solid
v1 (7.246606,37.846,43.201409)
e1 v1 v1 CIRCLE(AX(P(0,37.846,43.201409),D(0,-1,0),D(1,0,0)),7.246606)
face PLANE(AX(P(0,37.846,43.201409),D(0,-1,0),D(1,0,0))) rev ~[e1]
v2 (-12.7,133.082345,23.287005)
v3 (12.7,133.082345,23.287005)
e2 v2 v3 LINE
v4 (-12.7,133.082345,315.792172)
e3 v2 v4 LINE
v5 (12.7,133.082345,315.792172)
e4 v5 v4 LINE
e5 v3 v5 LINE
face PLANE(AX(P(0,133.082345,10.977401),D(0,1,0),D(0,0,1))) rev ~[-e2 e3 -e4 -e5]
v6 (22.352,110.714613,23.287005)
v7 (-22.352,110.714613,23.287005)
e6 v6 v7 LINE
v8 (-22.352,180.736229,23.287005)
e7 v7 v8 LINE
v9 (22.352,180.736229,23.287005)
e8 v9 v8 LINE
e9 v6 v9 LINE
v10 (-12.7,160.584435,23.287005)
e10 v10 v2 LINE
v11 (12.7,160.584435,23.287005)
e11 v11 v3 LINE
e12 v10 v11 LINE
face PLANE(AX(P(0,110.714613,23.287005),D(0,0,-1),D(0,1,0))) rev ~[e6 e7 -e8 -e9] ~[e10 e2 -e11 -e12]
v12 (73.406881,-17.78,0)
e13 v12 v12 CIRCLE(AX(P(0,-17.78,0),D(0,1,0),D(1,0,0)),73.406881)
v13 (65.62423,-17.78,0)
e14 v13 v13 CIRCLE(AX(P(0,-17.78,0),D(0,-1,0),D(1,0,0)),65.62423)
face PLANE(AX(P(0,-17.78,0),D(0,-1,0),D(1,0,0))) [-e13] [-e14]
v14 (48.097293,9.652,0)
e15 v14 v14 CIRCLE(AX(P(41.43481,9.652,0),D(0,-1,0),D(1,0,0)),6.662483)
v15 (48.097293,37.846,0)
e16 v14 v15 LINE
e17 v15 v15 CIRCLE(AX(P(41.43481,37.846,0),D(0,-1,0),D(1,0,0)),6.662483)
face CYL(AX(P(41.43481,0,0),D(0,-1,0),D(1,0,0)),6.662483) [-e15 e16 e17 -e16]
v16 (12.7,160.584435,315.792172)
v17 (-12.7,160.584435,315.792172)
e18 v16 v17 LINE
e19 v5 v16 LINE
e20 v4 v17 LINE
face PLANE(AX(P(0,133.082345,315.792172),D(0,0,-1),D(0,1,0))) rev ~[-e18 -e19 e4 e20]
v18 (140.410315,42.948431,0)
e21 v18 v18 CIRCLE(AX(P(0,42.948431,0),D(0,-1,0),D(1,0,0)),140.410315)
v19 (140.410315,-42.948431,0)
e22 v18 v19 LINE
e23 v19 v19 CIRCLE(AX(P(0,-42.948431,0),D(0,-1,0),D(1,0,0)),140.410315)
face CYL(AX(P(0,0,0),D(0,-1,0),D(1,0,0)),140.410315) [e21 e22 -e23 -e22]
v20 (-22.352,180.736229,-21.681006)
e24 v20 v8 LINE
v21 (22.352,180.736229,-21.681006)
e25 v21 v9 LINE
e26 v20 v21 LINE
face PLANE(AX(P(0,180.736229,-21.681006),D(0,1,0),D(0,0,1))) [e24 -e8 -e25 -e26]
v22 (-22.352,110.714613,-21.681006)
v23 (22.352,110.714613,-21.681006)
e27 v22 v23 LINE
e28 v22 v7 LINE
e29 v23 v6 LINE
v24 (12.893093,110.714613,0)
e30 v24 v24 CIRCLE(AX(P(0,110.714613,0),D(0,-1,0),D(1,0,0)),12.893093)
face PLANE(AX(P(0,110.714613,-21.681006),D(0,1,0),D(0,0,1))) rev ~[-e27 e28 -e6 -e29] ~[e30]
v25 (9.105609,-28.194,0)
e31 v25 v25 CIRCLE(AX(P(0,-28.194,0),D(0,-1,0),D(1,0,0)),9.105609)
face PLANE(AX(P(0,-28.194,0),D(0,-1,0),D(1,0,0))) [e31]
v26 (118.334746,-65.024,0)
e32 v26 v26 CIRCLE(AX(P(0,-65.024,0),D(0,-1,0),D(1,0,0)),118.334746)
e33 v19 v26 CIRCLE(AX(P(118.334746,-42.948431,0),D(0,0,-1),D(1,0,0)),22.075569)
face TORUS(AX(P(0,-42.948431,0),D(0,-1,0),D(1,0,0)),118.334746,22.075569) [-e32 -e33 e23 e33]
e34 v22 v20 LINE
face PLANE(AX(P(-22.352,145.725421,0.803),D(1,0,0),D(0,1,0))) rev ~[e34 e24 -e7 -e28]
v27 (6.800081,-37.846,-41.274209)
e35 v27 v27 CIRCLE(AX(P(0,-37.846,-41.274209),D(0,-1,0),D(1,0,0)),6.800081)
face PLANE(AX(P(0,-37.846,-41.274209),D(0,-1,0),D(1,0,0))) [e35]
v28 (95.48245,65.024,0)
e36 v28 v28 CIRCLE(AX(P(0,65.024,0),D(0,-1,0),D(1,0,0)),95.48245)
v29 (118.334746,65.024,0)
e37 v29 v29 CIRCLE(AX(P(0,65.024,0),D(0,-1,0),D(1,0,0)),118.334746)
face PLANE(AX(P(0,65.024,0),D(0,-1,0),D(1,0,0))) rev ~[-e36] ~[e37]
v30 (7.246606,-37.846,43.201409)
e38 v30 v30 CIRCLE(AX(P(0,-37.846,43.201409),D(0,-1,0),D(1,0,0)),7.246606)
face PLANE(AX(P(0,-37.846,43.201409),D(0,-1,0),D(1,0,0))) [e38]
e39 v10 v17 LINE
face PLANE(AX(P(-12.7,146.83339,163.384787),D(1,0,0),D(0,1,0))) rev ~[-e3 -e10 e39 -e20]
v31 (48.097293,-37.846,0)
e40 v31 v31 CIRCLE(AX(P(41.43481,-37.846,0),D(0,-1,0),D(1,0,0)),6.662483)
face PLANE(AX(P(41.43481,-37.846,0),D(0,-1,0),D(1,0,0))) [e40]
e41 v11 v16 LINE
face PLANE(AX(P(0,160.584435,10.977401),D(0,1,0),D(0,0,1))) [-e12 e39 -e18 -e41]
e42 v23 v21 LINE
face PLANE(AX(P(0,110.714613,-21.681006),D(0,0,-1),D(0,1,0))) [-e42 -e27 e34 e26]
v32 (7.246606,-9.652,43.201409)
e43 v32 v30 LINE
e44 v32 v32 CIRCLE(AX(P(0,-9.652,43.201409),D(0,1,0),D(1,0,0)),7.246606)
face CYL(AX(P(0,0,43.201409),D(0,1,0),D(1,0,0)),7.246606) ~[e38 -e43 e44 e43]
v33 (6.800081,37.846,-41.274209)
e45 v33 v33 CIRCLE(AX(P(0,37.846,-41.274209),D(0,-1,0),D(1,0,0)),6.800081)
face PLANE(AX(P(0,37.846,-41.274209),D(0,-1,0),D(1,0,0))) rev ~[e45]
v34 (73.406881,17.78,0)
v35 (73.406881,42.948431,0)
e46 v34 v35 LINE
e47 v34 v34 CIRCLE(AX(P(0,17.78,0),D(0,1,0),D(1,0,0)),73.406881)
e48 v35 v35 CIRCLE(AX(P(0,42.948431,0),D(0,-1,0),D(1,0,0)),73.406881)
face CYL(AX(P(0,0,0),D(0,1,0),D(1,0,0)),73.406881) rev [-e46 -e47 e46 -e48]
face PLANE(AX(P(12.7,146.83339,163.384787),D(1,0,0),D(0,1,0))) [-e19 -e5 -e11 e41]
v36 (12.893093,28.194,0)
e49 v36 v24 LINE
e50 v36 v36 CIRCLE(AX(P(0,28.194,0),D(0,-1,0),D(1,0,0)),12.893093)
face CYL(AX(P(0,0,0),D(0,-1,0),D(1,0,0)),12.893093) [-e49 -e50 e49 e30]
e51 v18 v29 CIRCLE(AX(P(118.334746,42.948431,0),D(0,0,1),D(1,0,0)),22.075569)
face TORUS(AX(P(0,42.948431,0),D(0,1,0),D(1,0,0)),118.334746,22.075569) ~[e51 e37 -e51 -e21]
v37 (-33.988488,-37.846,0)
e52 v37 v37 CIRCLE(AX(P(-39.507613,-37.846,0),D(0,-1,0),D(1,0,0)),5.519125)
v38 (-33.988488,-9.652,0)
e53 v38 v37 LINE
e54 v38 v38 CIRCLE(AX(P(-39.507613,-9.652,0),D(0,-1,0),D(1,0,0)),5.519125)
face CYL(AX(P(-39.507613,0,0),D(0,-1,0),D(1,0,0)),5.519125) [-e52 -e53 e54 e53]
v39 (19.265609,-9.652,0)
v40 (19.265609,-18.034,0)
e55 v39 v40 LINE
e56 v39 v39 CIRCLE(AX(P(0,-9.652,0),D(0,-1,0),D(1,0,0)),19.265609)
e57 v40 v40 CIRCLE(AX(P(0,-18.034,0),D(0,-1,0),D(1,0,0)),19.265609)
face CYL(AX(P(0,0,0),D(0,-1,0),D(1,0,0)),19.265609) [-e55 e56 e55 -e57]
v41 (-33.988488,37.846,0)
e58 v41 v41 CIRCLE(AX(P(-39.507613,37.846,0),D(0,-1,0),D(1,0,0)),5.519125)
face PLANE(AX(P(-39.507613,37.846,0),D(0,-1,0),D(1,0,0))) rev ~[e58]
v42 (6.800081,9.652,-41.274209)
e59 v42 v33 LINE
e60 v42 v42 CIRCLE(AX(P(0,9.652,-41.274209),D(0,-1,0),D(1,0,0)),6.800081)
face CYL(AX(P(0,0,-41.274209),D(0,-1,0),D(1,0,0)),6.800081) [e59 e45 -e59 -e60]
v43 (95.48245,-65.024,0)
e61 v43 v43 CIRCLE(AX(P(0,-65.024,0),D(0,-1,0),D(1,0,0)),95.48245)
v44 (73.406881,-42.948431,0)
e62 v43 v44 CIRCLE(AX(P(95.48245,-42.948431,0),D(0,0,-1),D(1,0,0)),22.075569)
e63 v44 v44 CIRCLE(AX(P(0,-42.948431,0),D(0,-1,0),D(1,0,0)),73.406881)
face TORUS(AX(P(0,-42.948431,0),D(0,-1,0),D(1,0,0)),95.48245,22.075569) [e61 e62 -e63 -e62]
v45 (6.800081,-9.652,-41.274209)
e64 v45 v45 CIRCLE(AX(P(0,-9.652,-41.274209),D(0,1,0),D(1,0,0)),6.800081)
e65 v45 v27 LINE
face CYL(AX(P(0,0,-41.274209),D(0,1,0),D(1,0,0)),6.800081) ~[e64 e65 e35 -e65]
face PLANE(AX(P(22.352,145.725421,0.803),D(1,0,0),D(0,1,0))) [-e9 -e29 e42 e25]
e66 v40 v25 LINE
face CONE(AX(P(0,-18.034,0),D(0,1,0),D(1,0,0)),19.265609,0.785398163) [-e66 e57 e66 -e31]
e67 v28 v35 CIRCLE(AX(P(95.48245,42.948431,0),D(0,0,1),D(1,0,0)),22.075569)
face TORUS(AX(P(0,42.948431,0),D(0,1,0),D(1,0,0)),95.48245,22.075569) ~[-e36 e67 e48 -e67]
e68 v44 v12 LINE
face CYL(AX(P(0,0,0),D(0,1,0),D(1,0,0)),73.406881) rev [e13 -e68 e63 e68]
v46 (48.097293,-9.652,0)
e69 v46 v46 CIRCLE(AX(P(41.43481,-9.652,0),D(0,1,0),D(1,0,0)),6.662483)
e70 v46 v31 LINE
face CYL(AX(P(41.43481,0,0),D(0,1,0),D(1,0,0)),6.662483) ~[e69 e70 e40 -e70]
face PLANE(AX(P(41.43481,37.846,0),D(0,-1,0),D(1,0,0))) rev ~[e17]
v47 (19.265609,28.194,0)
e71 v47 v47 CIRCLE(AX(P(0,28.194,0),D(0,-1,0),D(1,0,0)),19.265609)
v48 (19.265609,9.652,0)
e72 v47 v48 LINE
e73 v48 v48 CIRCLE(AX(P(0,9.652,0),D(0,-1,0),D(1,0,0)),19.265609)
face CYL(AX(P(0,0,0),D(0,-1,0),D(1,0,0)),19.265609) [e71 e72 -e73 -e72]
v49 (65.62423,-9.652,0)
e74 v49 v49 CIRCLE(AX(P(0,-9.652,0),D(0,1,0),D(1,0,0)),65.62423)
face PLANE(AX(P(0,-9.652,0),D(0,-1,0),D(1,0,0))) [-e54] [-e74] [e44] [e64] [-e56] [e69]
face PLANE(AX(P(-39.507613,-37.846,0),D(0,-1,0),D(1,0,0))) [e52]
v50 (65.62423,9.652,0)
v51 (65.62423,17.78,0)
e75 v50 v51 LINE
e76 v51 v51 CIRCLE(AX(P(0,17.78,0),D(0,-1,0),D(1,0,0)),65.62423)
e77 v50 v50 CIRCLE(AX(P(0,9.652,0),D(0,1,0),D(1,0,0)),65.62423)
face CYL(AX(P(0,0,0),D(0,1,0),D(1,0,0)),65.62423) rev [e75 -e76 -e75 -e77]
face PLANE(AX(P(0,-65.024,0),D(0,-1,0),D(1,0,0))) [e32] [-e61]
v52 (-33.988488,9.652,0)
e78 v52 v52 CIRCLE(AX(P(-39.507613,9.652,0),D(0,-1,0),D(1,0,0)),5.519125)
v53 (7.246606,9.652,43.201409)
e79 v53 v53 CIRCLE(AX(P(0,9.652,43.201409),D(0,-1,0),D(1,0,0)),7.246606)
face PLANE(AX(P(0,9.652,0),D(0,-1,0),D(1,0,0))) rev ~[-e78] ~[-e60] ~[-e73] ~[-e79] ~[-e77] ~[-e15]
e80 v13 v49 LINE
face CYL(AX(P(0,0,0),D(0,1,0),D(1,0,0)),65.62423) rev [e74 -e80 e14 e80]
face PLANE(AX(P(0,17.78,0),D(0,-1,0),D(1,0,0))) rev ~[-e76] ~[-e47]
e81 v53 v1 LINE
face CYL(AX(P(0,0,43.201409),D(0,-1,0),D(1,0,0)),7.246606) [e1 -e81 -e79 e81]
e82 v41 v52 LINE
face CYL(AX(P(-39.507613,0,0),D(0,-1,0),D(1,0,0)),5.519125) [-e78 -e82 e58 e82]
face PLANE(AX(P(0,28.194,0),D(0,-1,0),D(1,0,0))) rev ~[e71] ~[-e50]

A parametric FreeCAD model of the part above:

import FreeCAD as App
import Part
import Sketcher
Q = App.Units.Quantity


def edges_at(feature, points):
    """Names of the edges that pass closest to the given points."""
    edges = feature.Shape.Edges
    near = lambda p: min(range(len(edges)), key=lambda i: edges[i].distToShape(Part.Vertex(*p))[0])
    return sorted({f"Edge{near(p) + 1}" for p in points})


def add_polygon(sketch, points):
    """Adds a closed chain of lines whose ends are joined by coincident constraints."""
    first, n = sketch.GeometryCount, len(points)
    for a, b in zip(points, points[1:] + points[:1]):
        sketch.addGeometry(Part.LineSegment(App.Vector(*a, 0), App.Vector(*b, 0)), False)
    for i in range(n):
        sketch.addConstraint(Sketcher.Constraint("Coincident", first + i, 2, first + (i + 1) % n, 1))

doc = App.newDocument("Part")
body = doc.addObject("PartDesign::Body", "Body")

# Sketch on XZ plane
sketch1 = doc.addObject("Sketcher::SketchObject", "Sketch")
body.addObject(sketch1)
sketch1.AttachmentSupport = (doc.XZ_Plane, [""])
sketch1.MapMode = "FlatFace"
sketch1.addGeometry(Part.Circle(App.Vector(0, 0, 0), App.Vector(0, 0, 1), 19), False)
sketch1.addConstraint([
    Sketcher.Constraint("Coincident", 0, 3, -1, 1),
    Sketcher.Constraint("Diameter", 0, Q("38.531218 mm")),
])
pad1 = doc.addObject("PartDesign::Pad", "Pad")
body.addObject(pad1)
pad1.Profile = sketch1
pad1.Length = Q("2.22 in")
pad1.Midplane = True

# Sketch on XZ plane
sketch2 = doc.addObject("Sketcher::SketchObject", "Sketch001")
body.addObject(sketch2)
sketch2.AttachmentSupport = (doc.XZ_Plane, [""])
sketch2.MapMode = "FlatFace"
sketch2.addGeometry(Part.Circle(App.Vector(0, 0, 0), App.Vector(0, 0, 1), 77), False)
sketch2.addConstraint([
    Sketcher.Constraint("Coincident", 0, 3, -1, 1),
    Sketcher.Constraint("Diameter", 0, Q("153.431834 mm")),
])
pad2 = doc.addObject("PartDesign::Pad", "Pad001")
body.addObject(pad2)
pad2.Profile = sketch2
pad2.Length = Q("0.76 in")
pad2.Midplane = True
doc.recompute()

chamfer = doc.addObject("PartDesign::Chamfer", "Chamfer")
body.addObject(chamfer)
chamfer.Base = (pad2, edges_at(pad2, [(-19.266, -28.194, 0)]))
chamfer.Size = Q("0.4 in")

# Sketch on XZ plane
sketch3 = doc.addObject("Sketcher::SketchObject", "Sketch002")
body.addObject(sketch3)
sketch3.AttachmentSupport = (doc.XZ_Plane, [""])
sketch3.MapMode = "FlatFace"
sketch3.addGeometry([
    Part.Circle(App.Vector(0, 0, 0), App.Vector(0, 0, 1), 77),
    Part.Circle(App.Vector(0, 0, 0), App.Vector(0, 0, 1), 66),
], False)
sketch3.addConstraint([
    Sketcher.Constraint("Coincident", 0, 3, -1, 1),
    Sketcher.Constraint("Coincident", 1, 3, -1, 1),
    Sketcher.Constraint("Diameter", 1, Q("131.24846 mm")),
    Sketcher.Constraint("Diameter", 0, Q("153.246006 mm")),
])
pad3 = doc.addObject("PartDesign::Pad", "Pad002")
body.addObject(pad3)
pad3.Profile = sketch3
pad3.Length = Q("1.4 in")
pad3.Midplane = True

# Sketch on XZ plane
sketch4 = doc.addObject("Sketcher::SketchObject", "Sketch003")
body.addObject(sketch4)
sketch4.AttachmentSupport = (doc.XZ_Plane, [""])
sketch4.MapMode = "FlatFace"
sketch4.addGeometry([
    Part.Circle(App.Vector(0, 0, 0), App.Vector(0, 0, 1), 140),
    Part.Circle(App.Vector(0, 0, 0), App.Vector(0, 0, 1), 73),
], False)
sketch4.addConstraint([
    Sketcher.Constraint("Coincident", 0, 3, -1, 1),
    Sketcher.Constraint("Coincident", 1, 3, -1, 1),
    Sketcher.Constraint("Diameter", 0, Q("280.82063 mm")),
    Sketcher.Constraint("Diameter", 1, Q("146.813762 mm")),
])
pad4 = doc.addObject("PartDesign::Pad", "Pad003")
body.addObject(pad4)
pad4.Profile = sketch4
pad4.Length = Q("5.12 in")
pad4.Midplane = True
doc.recompute()

fillet = doc.addObject("PartDesign::Fillet", "Fillet")
body.addObject(fillet)
fillet.Base = (pad4, edges_at(pad4, [
    (-140.41, 65.024, 0),
    (-73.407, 65.024, 0),
    (-140.41, -65.024, 0),
    (-73.407, -65.024, 0),
]))
fillet.Radius = 22.075569

# Sketch on XZ plane
sketch5 = doc.addObject("Sketcher::SketchObject", "Sketch004")
body.addObject(sketch5)
sketch5.AttachmentSupport = (doc.XZ_Plane, [""])
sketch5.MapMode = "FlatFace"
sketch5.addGeometry([
    Part.Circle(App.Vector(0, 43, 0), App.Vector(0, 0, 1), 7),
    Part.Circle(App.Vector(41, 0, 0), App.Vector(0, 0, 1), 7),
    Part.Circle(App.Vector(0, -41, 0), App.Vector(0, 0, 1), 7),
    Part.Circle(App.Vector(-40, 0, 0), App.Vector(0, 0, 1), 6),
], False)
sketch5.addConstraint([
    Sketcher.Constraint("PointOnObject", 0, 3, -2),
    Sketcher.Constraint("PointOnObject", 1, 3, -1),
    Sketcher.Constraint("PointOnObject", 2, 3, -2),
    Sketcher.Constraint("PointOnObject", 3, 3, -1),
    Sketcher.Constraint("Diameter", 2, Q("13.600162 mm")),
    Sketcher.Constraint("Diameter", 3, Q("11.03825 mm")),
    Sketcher.Constraint("Diameter", 0, Q("14.493212 mm")),
    Sketcher.Constraint("Diameter", 1, Q("13.324966 mm")),
    Sketcher.Constraint("DistanceY", -1, 1, 0, 3, Q("43.201409 mm")),
    Sketcher.Constraint("DistanceX", -1, 1, 1, 3, Q("41.43481 mm")),
    Sketcher.Constraint("DistanceY", 2, 3, -1, 1, Q("41.274209 mm")),
    Sketcher.Constraint("DistanceX", 3, 3, -1, 1, Q("39.507613 mm")),
])
pad5 = doc.addObject("PartDesign::Pad", "Pad004")
body.addObject(pad5)
pad5.Profile = sketch5
pad5.Length = Q("2.98 in")
pad5.Midplane = True

# Sketch on XZ plane
sketch6 = doc.addObject("Sketcher::SketchObject", "Sketch005")
body.addObject(sketch6)
sketch6.AttachmentSupport = (doc.XZ_Plane, [""])
sketch6.MapMode = "FlatFace"
sketch6.addGeometry(Part.Circle(App.Vector(0, 0, 0), App.Vector(0, 0, 1), 13), False)
sketch6.addConstraint([
    Sketcher.Constraint("Coincident", 0, 3, -1, 1),
    Sketcher.Constraint("Diameter", 0, Q("25.786186 mm")),
])
pad6 = doc.addObject("PartDesign::Pad", "Pad005")
body.addObject(pad6)
pad6.Profile = sketch6
pad6.Length = Q("6.71 in")
pad6.Reversed = True

# Sketch on YZ plane
sketch7 = doc.addObject("Sketcher::SketchObject", "Sketch006")
body.addObject(sketch7)
sketch7.AttachmentSupport = (doc.YZ_Plane, [""])
sketch7.MapMode = "FlatFace"
add_polygon(sketch7, [(111, 23), (111, -22), (181, -22), (181, 23)])  # lines 0-3
sketch7.addConstraint([
    Sketcher.Constraint("Vertical", 0),
    Sketcher.Constraint("Horizontal", 1),
    Sketcher.Constraint("Vertical", 2),
    Sketcher.Constraint("Horizontal", 3),
    Sketcher.Constraint("DistanceY", 0, 2, 0, 1, Q("44.968011 mm")),
    Sketcher.Constraint("DistanceX", 1, 1, 1, 2, Q("70.021615 mm")),
    Sketcher.Constraint("DistanceX", -1, 1, 1, 2, Q("180.736229 mm")),
    Sketcher.Constraint("DistanceY", 0, 2, -1, 1, Q("21.681006 mm")),
])
pad7 = doc.addObject("PartDesign::Pad", "Pad006")
body.addObject(pad7)
pad7.Profile = sketch7
pad7.Length = Q("1.76 in")
pad7.Midplane = True

# Sketch on YZ plane
sketch8 = doc.addObject("Sketcher::SketchObject", "Sketch007")
body.addObject(sketch8)
sketch8.AttachmentSupport = (doc.YZ_Plane, [""])
sketch8.MapMode = "FlatFace"
add_polygon(sketch8, [(133, 316), (133, 11), (161, 11), (161, 316)])  # lines 0-3
sketch8.addConstraint([
    Sketcher.Constraint("Vertical", 0),
    Sketcher.Constraint("Horizontal", 1),
    Sketcher.Constraint("Vertical", 2),
    Sketcher.Constraint("Horizontal", 3),
    Sketcher.Constraint("DistanceX", 1, 1, 1, 2, Q("27.50209 mm")),
    Sketcher.Constraint("DistanceY", 0, 2, 0, 1, Q("304.814771 mm")),
    Sketcher.Constraint("DistanceY", -1, 1, 0, 2, Q("10.977401 mm")),
    Sketcher.Constraint("DistanceX", -1, 1, 0, 2, Q("133.082345 mm")),
])
pad8 = doc.addObject("PartDesign::Pad", "Pad007")
body.addObject(pad8)
pad8.Profile = sketch8
pad8.Length = Q("1 in")
pad8.Midplane = True

doc.recompute()
